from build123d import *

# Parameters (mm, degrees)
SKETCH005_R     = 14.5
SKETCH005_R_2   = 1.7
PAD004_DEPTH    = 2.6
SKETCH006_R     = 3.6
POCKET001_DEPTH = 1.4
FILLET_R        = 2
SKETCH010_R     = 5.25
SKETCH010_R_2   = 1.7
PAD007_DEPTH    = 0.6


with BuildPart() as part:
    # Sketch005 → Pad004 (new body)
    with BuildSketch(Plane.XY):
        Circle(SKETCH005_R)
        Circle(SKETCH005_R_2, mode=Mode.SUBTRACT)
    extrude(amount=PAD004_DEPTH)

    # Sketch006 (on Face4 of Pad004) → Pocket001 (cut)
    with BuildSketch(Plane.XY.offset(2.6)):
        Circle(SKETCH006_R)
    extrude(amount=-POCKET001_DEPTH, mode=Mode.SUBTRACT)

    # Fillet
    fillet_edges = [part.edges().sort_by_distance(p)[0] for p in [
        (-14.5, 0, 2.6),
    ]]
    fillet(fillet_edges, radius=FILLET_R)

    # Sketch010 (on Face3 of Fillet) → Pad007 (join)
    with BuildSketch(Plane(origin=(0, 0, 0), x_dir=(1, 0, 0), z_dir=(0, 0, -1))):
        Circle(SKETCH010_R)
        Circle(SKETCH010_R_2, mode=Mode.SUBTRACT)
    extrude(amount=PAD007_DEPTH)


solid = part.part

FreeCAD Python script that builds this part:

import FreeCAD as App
import Part
import Sketcher
from FreeCAD import Vector


def edges_at(feature, points):
    """Names of the edges that pass closest to the given points."""
    edges = feature.Shape.Edges
    near = lambda p: min(range(len(edges)), key=lambda i: edges[i].distToShape(Part.Vertex(*p))[0])
    return sorted({f"Edge{near(p) + 1}" for p in points})

doc = App.newDocument("Part")
body = doc.addObject("PartDesign::Body", "Body")

sketch1 = doc.addObject("Sketcher::SketchObject", "Sketch")
body.addObject(sketch1)
sketch1.AttachmentSupport = (doc.XY_Plane, [""])
sketch1.MapMode = "FlatFace"
sketch1.addGeometry([
    Part.Circle(Vector(0, 0, 0), Vector(0, 0, 1), 14.5),
    Part.Circle(Vector(0, 0, 0), Vector(0, 0, 1), 1.7),
], False)
sketch1.addConstraint([
    Sketcher.Constraint("Coincident", 0, 3, -1, 1),
    Sketcher.Constraint("Coincident", 1, 3, -1, 1),
    Sketcher.Constraint("Diameter", 0, 29.0),
    Sketcher.Constraint("Diameter", 1, 3.4),
])
pad1 = doc.addObject("PartDesign::Pad", "Pad")
body.addObject(pad1)
pad1.Profile = sketch1
pad1.Length = 2.6

sketch2 = doc.addObject("Sketcher::SketchObject", "Sketch001")
body.addObject(sketch2)
sketch2.AttachmentSupport = (doc.XY_Plane, [""])
sketch2.MapMode = "FlatFace"
sketch2.AttachmentOffset = App.Placement(Vector(0, 0, 2.6), App.Rotation())
sketch2.addGeometry(Part.Circle(Vector(0, 0, 0), Vector(0, 0, 1), 3.6), False)
sketch2.addConstraint([
    Sketcher.Constraint("Coincident", 0, 3, -1, 1),
    Sketcher.Constraint("Diameter", 0, 7.2),
])
pocket1 = doc.addObject("PartDesign::Pocket", "Pocket")
body.addObject(pocket1)
pocket1.Profile = sketch2
pocket1.Length = 1.4
doc.recompute()

fillet = doc.addObject("PartDesign::Fillet", "Fillet")
body.addObject(fillet)
fillet.Base = (pocket1, edges_at(pocket1, [(-14.5, 0, 2.6)]))
fillet.Radius = 2

sketch3 = doc.addObject("Sketcher::SketchObject", "Sketch002")
body.addObject(sketch3)
sketch3.AttachmentSupport = (doc.XY_Plane, [""])
sketch3.MapMode = "FlatFace"
sketch3.addGeometry([
    Part.Circle(Vector(0, 0, 0), Vector(0, 0, 1), 5.2),
    Part.Circle(Vector(0, 0, 0), Vector(0, 0, 1), 1.7),
], False)
sketch3.addConstraint([
    Sketcher.Constraint("Coincident", 0, 3, -1, 1),
    Sketcher.Constraint("Coincident", 1, 3, -1, 1),
    Sketcher.Constraint("Diameter", 0, 10.5),
    Sketcher.Constraint("Diameter", 1, 3.4),
])
pad2 = doc.addObject("PartDesign::Pad", "Pad001")
body.addObject(pad2)
pad2.Profile = sketch3
pad2.Length = 0.6
pad2.Reversed = True

doc.recompute()
